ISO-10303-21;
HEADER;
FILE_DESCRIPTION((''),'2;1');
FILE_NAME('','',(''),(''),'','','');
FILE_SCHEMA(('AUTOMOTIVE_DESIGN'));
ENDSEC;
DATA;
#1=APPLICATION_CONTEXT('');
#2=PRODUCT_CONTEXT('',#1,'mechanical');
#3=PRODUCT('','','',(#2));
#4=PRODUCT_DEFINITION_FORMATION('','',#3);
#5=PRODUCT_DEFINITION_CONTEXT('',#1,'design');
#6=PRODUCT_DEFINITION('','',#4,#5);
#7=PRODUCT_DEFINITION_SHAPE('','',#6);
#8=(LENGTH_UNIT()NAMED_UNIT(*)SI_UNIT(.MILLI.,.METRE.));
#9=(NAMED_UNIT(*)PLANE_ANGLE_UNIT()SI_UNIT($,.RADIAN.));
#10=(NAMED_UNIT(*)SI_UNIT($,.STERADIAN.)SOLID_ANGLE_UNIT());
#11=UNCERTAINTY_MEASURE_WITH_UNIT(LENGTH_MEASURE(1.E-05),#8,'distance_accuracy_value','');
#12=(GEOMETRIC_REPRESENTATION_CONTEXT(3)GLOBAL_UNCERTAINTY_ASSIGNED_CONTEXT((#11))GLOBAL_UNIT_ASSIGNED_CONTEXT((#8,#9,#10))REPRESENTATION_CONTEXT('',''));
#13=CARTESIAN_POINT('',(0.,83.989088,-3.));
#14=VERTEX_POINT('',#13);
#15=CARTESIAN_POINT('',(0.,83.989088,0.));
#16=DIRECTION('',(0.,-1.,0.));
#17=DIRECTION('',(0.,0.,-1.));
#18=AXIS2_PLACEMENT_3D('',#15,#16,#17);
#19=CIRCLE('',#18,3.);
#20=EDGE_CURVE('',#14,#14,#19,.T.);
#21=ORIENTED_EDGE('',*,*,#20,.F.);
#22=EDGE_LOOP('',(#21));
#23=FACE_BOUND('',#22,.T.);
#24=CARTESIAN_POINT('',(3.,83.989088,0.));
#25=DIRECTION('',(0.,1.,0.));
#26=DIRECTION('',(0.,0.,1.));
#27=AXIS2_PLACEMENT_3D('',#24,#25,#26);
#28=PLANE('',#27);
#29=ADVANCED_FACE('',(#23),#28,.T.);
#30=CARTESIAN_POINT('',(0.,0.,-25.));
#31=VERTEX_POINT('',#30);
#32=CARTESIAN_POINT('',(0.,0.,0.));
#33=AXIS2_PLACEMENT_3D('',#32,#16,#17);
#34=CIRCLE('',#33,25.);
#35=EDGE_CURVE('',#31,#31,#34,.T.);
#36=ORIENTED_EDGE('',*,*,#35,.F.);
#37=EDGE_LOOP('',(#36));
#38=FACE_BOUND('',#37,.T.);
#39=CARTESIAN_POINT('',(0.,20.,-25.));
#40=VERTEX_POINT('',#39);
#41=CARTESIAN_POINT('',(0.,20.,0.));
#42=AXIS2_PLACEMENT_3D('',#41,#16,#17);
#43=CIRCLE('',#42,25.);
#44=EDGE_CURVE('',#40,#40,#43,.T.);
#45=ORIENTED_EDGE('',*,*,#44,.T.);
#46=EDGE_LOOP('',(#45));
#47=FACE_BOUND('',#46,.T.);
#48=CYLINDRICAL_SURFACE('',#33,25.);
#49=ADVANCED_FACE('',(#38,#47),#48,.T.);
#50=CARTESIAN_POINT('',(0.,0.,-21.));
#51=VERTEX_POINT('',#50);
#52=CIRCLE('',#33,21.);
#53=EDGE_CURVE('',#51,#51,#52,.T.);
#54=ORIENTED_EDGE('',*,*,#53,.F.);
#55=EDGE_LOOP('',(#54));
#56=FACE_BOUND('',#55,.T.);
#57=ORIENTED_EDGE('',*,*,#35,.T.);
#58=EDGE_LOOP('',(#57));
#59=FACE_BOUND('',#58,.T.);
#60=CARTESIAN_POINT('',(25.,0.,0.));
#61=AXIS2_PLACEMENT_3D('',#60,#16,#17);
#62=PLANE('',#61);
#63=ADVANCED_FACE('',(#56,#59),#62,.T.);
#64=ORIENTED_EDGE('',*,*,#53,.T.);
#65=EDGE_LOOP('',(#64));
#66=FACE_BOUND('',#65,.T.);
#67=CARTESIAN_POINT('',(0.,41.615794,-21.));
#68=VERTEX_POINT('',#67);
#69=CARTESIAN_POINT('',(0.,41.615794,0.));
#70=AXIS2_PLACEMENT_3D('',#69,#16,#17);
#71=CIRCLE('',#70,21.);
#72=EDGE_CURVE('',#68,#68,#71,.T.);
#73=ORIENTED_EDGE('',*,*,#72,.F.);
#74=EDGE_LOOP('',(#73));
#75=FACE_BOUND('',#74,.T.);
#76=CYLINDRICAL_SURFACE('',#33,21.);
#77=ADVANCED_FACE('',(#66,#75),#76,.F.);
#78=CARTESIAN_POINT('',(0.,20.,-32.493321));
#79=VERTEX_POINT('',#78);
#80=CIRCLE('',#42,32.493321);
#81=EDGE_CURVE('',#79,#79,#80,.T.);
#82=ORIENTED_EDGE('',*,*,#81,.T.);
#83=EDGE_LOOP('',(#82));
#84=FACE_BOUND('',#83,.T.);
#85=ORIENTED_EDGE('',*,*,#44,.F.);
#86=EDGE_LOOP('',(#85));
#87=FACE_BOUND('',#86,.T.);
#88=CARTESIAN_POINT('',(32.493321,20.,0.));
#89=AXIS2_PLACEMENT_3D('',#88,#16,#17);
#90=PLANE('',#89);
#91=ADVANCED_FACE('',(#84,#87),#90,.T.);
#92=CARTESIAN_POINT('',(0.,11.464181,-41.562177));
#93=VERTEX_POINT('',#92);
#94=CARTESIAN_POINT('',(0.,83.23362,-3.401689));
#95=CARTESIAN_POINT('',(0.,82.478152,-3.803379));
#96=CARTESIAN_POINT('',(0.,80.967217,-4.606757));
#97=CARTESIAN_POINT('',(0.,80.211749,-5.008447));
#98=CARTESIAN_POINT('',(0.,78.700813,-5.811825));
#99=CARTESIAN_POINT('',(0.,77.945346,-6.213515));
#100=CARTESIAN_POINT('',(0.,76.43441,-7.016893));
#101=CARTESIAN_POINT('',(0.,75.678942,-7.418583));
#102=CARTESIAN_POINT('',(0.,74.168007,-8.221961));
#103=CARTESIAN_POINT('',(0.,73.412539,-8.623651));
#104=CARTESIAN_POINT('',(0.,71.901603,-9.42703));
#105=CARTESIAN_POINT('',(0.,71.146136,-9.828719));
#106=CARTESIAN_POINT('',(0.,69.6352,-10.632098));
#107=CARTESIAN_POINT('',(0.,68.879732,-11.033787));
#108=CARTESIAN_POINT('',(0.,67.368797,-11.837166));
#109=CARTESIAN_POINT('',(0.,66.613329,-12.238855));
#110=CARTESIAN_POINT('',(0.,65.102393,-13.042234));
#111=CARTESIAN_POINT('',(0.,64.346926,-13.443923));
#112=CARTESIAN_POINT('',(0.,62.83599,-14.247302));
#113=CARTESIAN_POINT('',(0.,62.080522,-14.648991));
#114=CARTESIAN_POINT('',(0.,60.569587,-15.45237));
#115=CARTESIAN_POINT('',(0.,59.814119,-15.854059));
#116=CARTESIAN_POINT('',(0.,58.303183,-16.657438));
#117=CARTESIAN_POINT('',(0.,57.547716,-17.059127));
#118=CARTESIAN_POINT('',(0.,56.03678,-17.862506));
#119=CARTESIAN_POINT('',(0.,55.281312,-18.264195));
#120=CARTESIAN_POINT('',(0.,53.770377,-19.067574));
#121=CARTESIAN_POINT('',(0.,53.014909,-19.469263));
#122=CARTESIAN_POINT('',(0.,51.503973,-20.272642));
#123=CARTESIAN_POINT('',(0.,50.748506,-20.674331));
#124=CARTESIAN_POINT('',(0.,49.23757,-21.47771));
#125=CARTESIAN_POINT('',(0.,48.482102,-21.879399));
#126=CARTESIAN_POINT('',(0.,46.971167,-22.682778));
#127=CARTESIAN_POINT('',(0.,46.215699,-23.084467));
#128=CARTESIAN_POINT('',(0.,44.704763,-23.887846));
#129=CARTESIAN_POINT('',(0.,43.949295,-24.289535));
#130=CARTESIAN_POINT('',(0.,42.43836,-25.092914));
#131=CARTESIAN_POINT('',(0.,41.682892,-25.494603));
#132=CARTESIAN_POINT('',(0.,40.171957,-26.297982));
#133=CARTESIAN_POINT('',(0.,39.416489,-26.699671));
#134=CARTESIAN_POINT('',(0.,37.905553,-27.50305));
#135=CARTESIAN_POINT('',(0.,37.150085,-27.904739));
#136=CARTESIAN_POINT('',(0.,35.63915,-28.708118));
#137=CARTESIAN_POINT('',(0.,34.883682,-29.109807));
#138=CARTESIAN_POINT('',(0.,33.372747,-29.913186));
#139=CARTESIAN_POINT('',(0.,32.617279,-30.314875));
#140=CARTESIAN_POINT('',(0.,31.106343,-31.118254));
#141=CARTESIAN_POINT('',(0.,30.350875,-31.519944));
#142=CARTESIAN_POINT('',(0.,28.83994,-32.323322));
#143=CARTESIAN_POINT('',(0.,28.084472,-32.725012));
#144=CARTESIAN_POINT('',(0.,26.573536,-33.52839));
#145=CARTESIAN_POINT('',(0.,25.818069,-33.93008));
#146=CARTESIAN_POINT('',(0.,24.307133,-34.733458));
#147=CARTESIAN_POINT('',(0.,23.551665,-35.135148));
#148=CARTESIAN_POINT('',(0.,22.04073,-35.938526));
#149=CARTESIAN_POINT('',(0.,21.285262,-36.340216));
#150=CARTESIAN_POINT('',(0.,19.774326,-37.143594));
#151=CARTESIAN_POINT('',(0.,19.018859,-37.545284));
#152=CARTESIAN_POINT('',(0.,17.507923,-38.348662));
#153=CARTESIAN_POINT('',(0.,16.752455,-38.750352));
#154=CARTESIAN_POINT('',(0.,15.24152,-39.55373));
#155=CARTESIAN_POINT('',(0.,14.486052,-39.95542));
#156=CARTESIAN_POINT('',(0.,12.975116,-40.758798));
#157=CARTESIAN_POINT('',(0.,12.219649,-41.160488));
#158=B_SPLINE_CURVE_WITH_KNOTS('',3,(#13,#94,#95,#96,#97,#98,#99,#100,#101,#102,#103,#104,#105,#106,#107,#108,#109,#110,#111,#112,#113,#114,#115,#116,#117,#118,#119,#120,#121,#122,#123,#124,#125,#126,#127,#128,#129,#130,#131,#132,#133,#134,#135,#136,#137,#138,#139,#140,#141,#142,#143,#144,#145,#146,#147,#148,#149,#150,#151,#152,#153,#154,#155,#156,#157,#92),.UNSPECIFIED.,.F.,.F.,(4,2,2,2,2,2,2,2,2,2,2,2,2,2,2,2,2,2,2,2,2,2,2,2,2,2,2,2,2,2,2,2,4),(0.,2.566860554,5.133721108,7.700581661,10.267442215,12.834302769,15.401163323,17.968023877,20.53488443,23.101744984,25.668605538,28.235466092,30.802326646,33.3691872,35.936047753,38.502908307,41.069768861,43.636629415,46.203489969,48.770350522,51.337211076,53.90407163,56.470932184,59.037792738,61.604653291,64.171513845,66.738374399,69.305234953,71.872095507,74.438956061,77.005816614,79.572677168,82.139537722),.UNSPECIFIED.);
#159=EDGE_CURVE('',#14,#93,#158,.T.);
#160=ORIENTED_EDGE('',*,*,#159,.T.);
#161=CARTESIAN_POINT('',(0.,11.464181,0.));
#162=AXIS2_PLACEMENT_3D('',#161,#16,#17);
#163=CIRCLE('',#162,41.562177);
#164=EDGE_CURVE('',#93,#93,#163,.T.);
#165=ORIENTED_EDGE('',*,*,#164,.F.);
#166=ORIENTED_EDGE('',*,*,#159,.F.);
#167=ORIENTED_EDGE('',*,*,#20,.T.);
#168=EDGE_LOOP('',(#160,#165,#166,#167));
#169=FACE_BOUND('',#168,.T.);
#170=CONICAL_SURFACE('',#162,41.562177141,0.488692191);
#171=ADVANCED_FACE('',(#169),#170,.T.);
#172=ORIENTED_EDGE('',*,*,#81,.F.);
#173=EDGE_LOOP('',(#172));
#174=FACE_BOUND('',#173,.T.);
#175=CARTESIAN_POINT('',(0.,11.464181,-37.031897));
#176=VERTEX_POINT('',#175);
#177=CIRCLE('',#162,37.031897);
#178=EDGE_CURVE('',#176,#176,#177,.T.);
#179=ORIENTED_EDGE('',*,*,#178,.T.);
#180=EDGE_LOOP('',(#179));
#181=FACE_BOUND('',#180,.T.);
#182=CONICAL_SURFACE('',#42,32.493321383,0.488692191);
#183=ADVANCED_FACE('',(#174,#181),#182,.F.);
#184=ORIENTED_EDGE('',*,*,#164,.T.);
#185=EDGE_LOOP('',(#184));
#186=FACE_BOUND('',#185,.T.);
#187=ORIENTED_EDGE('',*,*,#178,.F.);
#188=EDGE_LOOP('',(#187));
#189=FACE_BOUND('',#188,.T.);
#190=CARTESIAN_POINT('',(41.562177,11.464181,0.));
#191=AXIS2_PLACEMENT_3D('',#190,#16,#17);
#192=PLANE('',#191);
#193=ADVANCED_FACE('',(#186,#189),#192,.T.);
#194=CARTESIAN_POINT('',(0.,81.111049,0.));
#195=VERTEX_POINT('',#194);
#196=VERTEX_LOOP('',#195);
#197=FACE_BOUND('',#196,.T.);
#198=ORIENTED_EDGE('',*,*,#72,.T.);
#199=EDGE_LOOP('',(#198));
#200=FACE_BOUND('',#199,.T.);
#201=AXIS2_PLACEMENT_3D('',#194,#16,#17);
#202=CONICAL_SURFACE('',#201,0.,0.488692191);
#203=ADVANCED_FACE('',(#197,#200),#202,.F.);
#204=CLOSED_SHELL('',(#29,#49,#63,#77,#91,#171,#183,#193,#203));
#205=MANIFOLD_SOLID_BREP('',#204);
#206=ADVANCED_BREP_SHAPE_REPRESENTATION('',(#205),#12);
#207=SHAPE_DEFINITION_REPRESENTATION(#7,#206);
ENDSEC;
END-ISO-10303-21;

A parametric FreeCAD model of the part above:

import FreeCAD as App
import Part
import Sketcher

V = App.Vector
Q = App.Units.Quantity

doc = App.newDocument("Part")
body = doc.addObject("PartDesign::Body", "Body")

# Sketch on XY plane
sketch1 = body.newObject("Sketcher::SketchObject", "Sketch")
sketch1.AttachmentSupport = (doc.getObject("XY_Plane"), [""])
sketch1.MapMode = "FlatFace"
sketch1.addGeometry([
    Part.LineSegment(V(21, 41.6, 0), V(21, 0, 0)),  # 0
    Part.LineSegment(V(21, 0, 0), V(25, 0, 0)),  # 1
    Part.LineSegment(V(25, 0, 0), V(25, 20, 0)),  # 2
    Part.LineSegment(V(25, 20, 0), V(32.5, 20, 0)),  # 3
    Part.LineSegment(V(32.5, 20, 0), V(37, 11.5, 0)),  # 4
    Part.LineSegment(V(37, 11.5, 0), V(41.6, 11.5, 0)),  # 5
    Part.LineSegment(V(41.6, 11.5, 0), V(3, 84, 0)),  # 6
    Part.LineSegment(V(3, 84, 0), V(0, 84, 0)),  # 7
    Part.LineSegment(V(0, 84, 0), V(0, 81.1, 0)),  # 8
    Part.LineSegment(V(0, 81.1, 0), V(21, 41.6, 0)),  # 9
], False)
sketch1.addConstraint([
    Sketcher.Constraint("Coincident", 0, 2, 1, 1),
    Sketcher.Constraint("Coincident", 1, 2, 2, 1),
    Sketcher.Constraint("Coincident", 2, 2, 3, 1),
    Sketcher.Constraint("Coincident", 3, 2, 4, 1),
    Sketcher.Constraint("Coincident", 4, 2, 5, 1),
    Sketcher.Constraint("Coincident", 5, 2, 6, 1),
    Sketcher.Constraint("Coincident", 6, 2, 7, 1),
    Sketcher.Constraint("Coincident", 7, 2, 8, 1),
    Sketcher.Constraint("Coincident", 8, 2, 9, 1),
    Sketcher.Constraint("Coincident", 9, 2, 0, 1),
    Sketcher.Constraint("Vertical", 0),
    Sketcher.Constraint("Horizontal", 1),
    Sketcher.Constraint("Vertical", 2),
    Sketcher.Constraint("Horizontal", 3),
    Sketcher.Constraint("Horizontal", 5),
    Sketcher.Constraint("Horizontal", 7),
    Sketcher.Constraint("Vertical", 8),
    Sketcher.Constraint("PointOnObject", 0, 2, -1),
    Sketcher.Constraint("PointOnObject", 7, 2, -2),
    Sketcher.Constraint("Parallel", 4, 6),
    Sketcher.Constraint("Parallel", 6, 9),
    Sketcher.Constraint("DistanceX", 1, 1, 1, 2, 4.0),
    Sketcher.Constraint("DistanceX", 7, 2, 7, 1, 3.0),
    Sketcher.Constraint("DistanceY", 2, 1, 2, 2, 20.0),
    Sketcher.Constraint("Angle", 4, Q("-62 deg")),
    Sketcher.Constraint("DistanceX", -1, 1, 0, 2, 21.0),
    Sketcher.Constraint("DistanceX", 3, 1, 3, 2, 7.493321),
    Sketcher.Constraint("DistanceX", 5, 1, 5, 2, 4.53028),
    Sketcher.Constraint("DistanceY", 8, 2, 8, 1, 2.878038),
    Sketcher.Constraint("DistanceY", -1, 1, 4, 2, 11.464181),
])
revolution = body.newObject("PartDesign::Revolution", "Revolution")
revolution.Profile = sketch1
revolution.ReferenceAxis = (sketch1, ["V_Axis"])
revolution.Angle = 360

doc.recompute()
